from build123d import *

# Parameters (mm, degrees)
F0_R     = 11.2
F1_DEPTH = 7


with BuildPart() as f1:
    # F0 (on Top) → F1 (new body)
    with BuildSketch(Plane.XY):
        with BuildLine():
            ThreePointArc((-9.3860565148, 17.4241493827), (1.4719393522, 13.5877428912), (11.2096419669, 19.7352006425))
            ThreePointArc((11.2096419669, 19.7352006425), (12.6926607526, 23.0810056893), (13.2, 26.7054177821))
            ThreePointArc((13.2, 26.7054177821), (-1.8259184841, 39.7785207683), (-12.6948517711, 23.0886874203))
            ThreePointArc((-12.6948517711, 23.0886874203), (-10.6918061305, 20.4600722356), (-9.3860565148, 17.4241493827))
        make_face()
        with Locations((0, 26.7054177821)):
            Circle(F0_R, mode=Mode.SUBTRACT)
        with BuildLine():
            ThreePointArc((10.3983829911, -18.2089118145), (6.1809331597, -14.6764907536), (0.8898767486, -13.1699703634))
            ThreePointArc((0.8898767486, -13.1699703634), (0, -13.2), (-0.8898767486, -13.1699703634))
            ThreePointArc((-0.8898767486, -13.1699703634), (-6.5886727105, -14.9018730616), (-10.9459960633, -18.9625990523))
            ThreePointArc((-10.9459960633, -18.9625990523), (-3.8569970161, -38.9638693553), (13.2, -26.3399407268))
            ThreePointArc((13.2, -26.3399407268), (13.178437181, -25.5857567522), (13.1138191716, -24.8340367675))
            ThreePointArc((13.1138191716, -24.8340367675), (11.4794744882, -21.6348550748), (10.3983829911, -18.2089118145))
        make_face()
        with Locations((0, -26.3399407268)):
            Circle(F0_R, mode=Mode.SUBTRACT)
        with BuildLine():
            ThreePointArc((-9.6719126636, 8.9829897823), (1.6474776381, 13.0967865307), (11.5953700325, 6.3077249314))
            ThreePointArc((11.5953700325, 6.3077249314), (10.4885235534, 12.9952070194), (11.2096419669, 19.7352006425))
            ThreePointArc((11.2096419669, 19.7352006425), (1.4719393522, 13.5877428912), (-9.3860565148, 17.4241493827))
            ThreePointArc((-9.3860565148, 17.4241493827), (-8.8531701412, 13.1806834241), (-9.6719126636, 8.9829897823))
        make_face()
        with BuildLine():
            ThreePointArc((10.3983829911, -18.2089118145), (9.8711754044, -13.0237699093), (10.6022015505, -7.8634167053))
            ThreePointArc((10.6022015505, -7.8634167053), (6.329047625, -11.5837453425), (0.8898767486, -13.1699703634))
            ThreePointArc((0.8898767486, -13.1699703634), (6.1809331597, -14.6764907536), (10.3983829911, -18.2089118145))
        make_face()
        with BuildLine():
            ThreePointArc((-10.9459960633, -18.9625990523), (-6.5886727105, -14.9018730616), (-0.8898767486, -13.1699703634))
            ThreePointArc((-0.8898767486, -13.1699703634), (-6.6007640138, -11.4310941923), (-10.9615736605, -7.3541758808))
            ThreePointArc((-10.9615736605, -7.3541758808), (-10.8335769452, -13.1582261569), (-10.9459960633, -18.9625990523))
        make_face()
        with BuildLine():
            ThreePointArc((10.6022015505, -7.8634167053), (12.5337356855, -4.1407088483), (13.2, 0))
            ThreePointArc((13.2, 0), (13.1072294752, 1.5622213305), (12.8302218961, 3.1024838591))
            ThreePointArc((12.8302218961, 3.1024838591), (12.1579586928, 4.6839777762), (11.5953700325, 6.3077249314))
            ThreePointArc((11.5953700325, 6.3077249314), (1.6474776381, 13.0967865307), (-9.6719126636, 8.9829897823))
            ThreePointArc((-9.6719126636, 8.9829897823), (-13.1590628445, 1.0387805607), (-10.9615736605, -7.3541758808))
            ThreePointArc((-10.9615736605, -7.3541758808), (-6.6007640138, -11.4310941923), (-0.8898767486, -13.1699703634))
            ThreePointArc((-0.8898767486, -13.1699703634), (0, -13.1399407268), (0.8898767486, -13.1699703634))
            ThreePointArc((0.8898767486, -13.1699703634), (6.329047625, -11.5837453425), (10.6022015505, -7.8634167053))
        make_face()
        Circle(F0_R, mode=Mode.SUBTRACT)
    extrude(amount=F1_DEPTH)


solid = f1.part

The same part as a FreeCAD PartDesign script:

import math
import FreeCAD as App
import Part
import Sketcher

doc = App.newDocument("Part")
body = doc.addObject("PartDesign::Body", "Body")

# Sketch on XY plane
sketch1 = body.newObject("Sketcher::SketchObject", "Sketch")
sketch1.AttachmentSupport = (doc.getObject("XY_Plane"), [""])
sketch1.MapMode = "FlatFace"
sketch1.addGeometry([
    Part.ArcOfCircle(Part.Circle(App.Vector(-22.4, 13.6, 0), App.Vector(0, 0, 1), 13.5), math.radians(16), math.radians(44)),  # 0
    Part.ArcOfCircle(Part.Circle(App.Vector(-22.4, 13.6, 0), App.Vector(0, 0, 1), 13.5), math.radians(-20), math.radians(16)),  # 1
    Part.ArcOfCircle(Part.Circle(App.Vector(0, 0, 0), App.Vector(0, 0, 1), 13.2), math.radians(137), math.radians(214)),  # 2
    Part.ArcOfCircle(Part.Circle(App.Vector(-151, -13.3, 0), App.Vector(0, 0, 1), 140.2), math.radians(-2.3), math.radians(2.45)),  # 3
    Part.ArcOfCircle(Part.Circle(App.Vector(0, -26.3, 0), App.Vector(0, 0, 1), 13.2), math.radians(146), math.radians(360)),  # 4
    Part.ArcOfCircle(Part.Circle(App.Vector(0, -26.3, 0), App.Vector(0, 0, 1), 13.2), math.radians(0), math.radians(6.55)),  # 5
    Part.ArcOfCircle(Part.Circle(App.Vector(31.5, -13.4, 0), App.Vector(0, 0, 1), 21.6), math.radians(-167.26), math.radians(-148.17)),  # 6
    Part.ArcOfCircle(Part.Circle(App.Vector(31.5, -13.4, 0), App.Vector(0, 0, 1), 21.6), math.radians(165), math.radians(193)),  # 7
    Part.ArcOfCircle(Part.Circle(App.Vector(0, 0, 0), App.Vector(0, 0, 1), 13.2), math.radians(-37), math.radians(0)),  # 8
    Part.ArcOfCircle(Part.Circle(App.Vector(0, 0, 0), App.Vector(0, 0, 1), 13.2), math.radians(0), math.radians(13.59)),  # 9
    Part.ArcOfCircle(Part.Circle(App.Vector(35.6, 13.7, 0), App.Vector(0, 0, 1), 25.1), math.radians(-162.85), math.radians(-155.01)),  # 10
    Part.ArcOfCircle(Part.Circle(App.Vector(35.6, 13.7, 0), App.Vector(0, 0, 1), 25.1), math.radians(166), math.radians(197)),  # 11
    Part.ArcOfCircle(Part.Circle(App.Vector(0, 26.7, 0), App.Vector(0, 0, 1), 13.2), math.radians(-32), math.radians(0)),  # 12
    Part.ArcOfCircle(Part.Circle(App.Vector(0, 26.7, 0), App.Vector(0, 0, 1), 13.2), math.radians(0), math.radians(196)),  # 13
    Part.Circle(App.Vector(0, -26.3, 0), App.Vector(0, 0, 1), 11.2),  # 14
    Part.ArcOfCircle(Part.Circle(App.Vector(0, -26.3, 0), App.Vector(0, 0, 1), 13.2), math.radians(86.13), math.radians(93.87)),  # 15
    Part.ArcOfCircle(Part.Circle(App.Vector(0, 0, 0), App.Vector(0, 0, 1), 13.2), math.radians(-93.87), math.radians(-86.13)),  # 16
    Part.Circle(App.Vector(0, 0, 0), App.Vector(0, 0, 1), 11.2),  # 17
    Part.Circle(App.Vector(0, 26.7, 0), App.Vector(0, 0, 1), 11.2),  # 18
], False)
sketch1.addConstraint([
    Sketcher.Constraint("Tangent", 0, 1, 1, 2),
    Sketcher.Constraint("Coincident", 1, 1, 2, 1),
    Sketcher.Constraint("Coincident", 2, 2, 3, 2),
    Sketcher.Constraint("Coincident", 3, 1, 4, 1),
    Sketcher.Constraint("Tangent", 4, 2, 5, 1),
    Sketcher.Constraint("Coincident", 5, 2, 6, 2),
    Sketcher.Constraint("Tangent", 6, 1, 7, 2),
    Sketcher.Constraint("Coincident", 7, 1, 8, 1),
    Sketcher.Constraint("Tangent", 8, 2, 9, 1),
    Sketcher.Constraint("Coincident", 9, 2, 10, 2),
    Sketcher.Constraint("Tangent", 10, 1, 11, 2),
    Sketcher.Constraint("Coincident", 11, 1, 12, 1),
    Sketcher.Constraint("Tangent", 12, 2, 13, 1),
    Sketcher.Constraint("Coincident", 13, 2, 0, 2),
    Sketcher.Constraint("Coincident", 15, 1, 16, 2),
    Sketcher.Constraint("Coincident", 16, 1, 15, 2),
    Sketcher.Constraint("Coincident", 2, 3, -1, 1),
    Sketcher.Constraint("Coincident", 8, 3, -1, 1),
    Sketcher.Constraint("Coincident", 16, 3, -1, 1),
    Sketcher.Constraint("Coincident", 17, 3, -1, 1),
    Sketcher.Constraint("Coincident", 14, 3, 4, 3),
    Sketcher.Constraint("Coincident", 15, 3, 4, 3),
    Sketcher.Constraint("Coincident", 18, 3, 12, 3),
    Sketcher.Constraint("Equal", 0, 1),
    Sketcher.Constraint("Equal", 2, 4),
    Sketcher.Constraint("Equal", 4, 5),
    Sketcher.Constraint("Equal", 6, 7),
    Sketcher.Constraint("Equal", 5, 8),
    Sketcher.Constraint("Equal", 8, 9),
    Sketcher.Constraint("Equal", 10, 11),
    Sketcher.Constraint("Equal", 9, 12),
    Sketcher.Constraint("Equal", 12, 13),
    Sketcher.Constraint("Equal", 13, 15),
    Sketcher.Constraint("Equal", 15, 16),
    Sketcher.Constraint("Equal", 14, 17),
    Sketcher.Constraint("Equal", 17, 18),
    Sketcher.Constraint("PointOnObject", 4, 3, -2),
    Sketcher.Constraint("PointOnObject", 12, 3, -2),
    Sketcher.Constraint("PointOnObject", 8, 2, -1),
    Sketcher.Constraint("Horizontal", 15, 3, 4, 2),
    Sketcher.Constraint("Horizontal", 18, 3, 12, 2),
    Sketcher.Constraint("Diameter", 14, 22.4),
    Sketcher.Constraint("Radius", 2, 13.2),
    Sketcher.Constraint("Radius", 3, 140.18774),
    Sketcher.Constraint("Radius", 0, 13.524786),
    Sketcher.Constraint("Radius", 6, 21.584523),
    Sketcher.Constraint("Radius", 10, 25.125526),
    Sketcher.Constraint("DistanceY", 3, 1, -1, 1, 18.962599),
    Sketcher.Constraint("DistanceX", -1, 1, 7, 1, 10.602202),
    Sketcher.Constraint("DistanceY", -1, 1, 11, 1, 19.735201),
    Sketcher.Constraint("DistanceY", 7, 1, 9, 2, 10.965901),
    Sketcher.Constraint("DistanceX", 0, 3, -1, 1, 22.370208),
    Sketcher.Constraint("DistanceY", -1, 1, 0, 3, 13.638432),
    Sketcher.Constraint("DistanceX", 3, 3, -1, 1, 151.021191),
    Sketcher.Constraint("DistanceY", 4, 3, -1, 1, 26.339941),
    Sketcher.Constraint("DistanceX", -1, 1, 6, 3, 31.45151),
    Sketcher.Constraint("DistanceX", -1, 1, 10, 3, 35.603689),
    Sketcher.Constraint("DistanceY", -1, 1, 0, 1, 17.424149),
    Sketcher.Constraint("DistanceY", 6, 1, -1, 1, 18.208912),
    Sketcher.Constraint("DistanceX", -1, 1, 10, 1, 11.59537),
])
pad1 = body.newObject("PartDesign::Pad", "Pad")
pad1.Profile = sketch1
pad1.Length = 7

doc.recompute()
